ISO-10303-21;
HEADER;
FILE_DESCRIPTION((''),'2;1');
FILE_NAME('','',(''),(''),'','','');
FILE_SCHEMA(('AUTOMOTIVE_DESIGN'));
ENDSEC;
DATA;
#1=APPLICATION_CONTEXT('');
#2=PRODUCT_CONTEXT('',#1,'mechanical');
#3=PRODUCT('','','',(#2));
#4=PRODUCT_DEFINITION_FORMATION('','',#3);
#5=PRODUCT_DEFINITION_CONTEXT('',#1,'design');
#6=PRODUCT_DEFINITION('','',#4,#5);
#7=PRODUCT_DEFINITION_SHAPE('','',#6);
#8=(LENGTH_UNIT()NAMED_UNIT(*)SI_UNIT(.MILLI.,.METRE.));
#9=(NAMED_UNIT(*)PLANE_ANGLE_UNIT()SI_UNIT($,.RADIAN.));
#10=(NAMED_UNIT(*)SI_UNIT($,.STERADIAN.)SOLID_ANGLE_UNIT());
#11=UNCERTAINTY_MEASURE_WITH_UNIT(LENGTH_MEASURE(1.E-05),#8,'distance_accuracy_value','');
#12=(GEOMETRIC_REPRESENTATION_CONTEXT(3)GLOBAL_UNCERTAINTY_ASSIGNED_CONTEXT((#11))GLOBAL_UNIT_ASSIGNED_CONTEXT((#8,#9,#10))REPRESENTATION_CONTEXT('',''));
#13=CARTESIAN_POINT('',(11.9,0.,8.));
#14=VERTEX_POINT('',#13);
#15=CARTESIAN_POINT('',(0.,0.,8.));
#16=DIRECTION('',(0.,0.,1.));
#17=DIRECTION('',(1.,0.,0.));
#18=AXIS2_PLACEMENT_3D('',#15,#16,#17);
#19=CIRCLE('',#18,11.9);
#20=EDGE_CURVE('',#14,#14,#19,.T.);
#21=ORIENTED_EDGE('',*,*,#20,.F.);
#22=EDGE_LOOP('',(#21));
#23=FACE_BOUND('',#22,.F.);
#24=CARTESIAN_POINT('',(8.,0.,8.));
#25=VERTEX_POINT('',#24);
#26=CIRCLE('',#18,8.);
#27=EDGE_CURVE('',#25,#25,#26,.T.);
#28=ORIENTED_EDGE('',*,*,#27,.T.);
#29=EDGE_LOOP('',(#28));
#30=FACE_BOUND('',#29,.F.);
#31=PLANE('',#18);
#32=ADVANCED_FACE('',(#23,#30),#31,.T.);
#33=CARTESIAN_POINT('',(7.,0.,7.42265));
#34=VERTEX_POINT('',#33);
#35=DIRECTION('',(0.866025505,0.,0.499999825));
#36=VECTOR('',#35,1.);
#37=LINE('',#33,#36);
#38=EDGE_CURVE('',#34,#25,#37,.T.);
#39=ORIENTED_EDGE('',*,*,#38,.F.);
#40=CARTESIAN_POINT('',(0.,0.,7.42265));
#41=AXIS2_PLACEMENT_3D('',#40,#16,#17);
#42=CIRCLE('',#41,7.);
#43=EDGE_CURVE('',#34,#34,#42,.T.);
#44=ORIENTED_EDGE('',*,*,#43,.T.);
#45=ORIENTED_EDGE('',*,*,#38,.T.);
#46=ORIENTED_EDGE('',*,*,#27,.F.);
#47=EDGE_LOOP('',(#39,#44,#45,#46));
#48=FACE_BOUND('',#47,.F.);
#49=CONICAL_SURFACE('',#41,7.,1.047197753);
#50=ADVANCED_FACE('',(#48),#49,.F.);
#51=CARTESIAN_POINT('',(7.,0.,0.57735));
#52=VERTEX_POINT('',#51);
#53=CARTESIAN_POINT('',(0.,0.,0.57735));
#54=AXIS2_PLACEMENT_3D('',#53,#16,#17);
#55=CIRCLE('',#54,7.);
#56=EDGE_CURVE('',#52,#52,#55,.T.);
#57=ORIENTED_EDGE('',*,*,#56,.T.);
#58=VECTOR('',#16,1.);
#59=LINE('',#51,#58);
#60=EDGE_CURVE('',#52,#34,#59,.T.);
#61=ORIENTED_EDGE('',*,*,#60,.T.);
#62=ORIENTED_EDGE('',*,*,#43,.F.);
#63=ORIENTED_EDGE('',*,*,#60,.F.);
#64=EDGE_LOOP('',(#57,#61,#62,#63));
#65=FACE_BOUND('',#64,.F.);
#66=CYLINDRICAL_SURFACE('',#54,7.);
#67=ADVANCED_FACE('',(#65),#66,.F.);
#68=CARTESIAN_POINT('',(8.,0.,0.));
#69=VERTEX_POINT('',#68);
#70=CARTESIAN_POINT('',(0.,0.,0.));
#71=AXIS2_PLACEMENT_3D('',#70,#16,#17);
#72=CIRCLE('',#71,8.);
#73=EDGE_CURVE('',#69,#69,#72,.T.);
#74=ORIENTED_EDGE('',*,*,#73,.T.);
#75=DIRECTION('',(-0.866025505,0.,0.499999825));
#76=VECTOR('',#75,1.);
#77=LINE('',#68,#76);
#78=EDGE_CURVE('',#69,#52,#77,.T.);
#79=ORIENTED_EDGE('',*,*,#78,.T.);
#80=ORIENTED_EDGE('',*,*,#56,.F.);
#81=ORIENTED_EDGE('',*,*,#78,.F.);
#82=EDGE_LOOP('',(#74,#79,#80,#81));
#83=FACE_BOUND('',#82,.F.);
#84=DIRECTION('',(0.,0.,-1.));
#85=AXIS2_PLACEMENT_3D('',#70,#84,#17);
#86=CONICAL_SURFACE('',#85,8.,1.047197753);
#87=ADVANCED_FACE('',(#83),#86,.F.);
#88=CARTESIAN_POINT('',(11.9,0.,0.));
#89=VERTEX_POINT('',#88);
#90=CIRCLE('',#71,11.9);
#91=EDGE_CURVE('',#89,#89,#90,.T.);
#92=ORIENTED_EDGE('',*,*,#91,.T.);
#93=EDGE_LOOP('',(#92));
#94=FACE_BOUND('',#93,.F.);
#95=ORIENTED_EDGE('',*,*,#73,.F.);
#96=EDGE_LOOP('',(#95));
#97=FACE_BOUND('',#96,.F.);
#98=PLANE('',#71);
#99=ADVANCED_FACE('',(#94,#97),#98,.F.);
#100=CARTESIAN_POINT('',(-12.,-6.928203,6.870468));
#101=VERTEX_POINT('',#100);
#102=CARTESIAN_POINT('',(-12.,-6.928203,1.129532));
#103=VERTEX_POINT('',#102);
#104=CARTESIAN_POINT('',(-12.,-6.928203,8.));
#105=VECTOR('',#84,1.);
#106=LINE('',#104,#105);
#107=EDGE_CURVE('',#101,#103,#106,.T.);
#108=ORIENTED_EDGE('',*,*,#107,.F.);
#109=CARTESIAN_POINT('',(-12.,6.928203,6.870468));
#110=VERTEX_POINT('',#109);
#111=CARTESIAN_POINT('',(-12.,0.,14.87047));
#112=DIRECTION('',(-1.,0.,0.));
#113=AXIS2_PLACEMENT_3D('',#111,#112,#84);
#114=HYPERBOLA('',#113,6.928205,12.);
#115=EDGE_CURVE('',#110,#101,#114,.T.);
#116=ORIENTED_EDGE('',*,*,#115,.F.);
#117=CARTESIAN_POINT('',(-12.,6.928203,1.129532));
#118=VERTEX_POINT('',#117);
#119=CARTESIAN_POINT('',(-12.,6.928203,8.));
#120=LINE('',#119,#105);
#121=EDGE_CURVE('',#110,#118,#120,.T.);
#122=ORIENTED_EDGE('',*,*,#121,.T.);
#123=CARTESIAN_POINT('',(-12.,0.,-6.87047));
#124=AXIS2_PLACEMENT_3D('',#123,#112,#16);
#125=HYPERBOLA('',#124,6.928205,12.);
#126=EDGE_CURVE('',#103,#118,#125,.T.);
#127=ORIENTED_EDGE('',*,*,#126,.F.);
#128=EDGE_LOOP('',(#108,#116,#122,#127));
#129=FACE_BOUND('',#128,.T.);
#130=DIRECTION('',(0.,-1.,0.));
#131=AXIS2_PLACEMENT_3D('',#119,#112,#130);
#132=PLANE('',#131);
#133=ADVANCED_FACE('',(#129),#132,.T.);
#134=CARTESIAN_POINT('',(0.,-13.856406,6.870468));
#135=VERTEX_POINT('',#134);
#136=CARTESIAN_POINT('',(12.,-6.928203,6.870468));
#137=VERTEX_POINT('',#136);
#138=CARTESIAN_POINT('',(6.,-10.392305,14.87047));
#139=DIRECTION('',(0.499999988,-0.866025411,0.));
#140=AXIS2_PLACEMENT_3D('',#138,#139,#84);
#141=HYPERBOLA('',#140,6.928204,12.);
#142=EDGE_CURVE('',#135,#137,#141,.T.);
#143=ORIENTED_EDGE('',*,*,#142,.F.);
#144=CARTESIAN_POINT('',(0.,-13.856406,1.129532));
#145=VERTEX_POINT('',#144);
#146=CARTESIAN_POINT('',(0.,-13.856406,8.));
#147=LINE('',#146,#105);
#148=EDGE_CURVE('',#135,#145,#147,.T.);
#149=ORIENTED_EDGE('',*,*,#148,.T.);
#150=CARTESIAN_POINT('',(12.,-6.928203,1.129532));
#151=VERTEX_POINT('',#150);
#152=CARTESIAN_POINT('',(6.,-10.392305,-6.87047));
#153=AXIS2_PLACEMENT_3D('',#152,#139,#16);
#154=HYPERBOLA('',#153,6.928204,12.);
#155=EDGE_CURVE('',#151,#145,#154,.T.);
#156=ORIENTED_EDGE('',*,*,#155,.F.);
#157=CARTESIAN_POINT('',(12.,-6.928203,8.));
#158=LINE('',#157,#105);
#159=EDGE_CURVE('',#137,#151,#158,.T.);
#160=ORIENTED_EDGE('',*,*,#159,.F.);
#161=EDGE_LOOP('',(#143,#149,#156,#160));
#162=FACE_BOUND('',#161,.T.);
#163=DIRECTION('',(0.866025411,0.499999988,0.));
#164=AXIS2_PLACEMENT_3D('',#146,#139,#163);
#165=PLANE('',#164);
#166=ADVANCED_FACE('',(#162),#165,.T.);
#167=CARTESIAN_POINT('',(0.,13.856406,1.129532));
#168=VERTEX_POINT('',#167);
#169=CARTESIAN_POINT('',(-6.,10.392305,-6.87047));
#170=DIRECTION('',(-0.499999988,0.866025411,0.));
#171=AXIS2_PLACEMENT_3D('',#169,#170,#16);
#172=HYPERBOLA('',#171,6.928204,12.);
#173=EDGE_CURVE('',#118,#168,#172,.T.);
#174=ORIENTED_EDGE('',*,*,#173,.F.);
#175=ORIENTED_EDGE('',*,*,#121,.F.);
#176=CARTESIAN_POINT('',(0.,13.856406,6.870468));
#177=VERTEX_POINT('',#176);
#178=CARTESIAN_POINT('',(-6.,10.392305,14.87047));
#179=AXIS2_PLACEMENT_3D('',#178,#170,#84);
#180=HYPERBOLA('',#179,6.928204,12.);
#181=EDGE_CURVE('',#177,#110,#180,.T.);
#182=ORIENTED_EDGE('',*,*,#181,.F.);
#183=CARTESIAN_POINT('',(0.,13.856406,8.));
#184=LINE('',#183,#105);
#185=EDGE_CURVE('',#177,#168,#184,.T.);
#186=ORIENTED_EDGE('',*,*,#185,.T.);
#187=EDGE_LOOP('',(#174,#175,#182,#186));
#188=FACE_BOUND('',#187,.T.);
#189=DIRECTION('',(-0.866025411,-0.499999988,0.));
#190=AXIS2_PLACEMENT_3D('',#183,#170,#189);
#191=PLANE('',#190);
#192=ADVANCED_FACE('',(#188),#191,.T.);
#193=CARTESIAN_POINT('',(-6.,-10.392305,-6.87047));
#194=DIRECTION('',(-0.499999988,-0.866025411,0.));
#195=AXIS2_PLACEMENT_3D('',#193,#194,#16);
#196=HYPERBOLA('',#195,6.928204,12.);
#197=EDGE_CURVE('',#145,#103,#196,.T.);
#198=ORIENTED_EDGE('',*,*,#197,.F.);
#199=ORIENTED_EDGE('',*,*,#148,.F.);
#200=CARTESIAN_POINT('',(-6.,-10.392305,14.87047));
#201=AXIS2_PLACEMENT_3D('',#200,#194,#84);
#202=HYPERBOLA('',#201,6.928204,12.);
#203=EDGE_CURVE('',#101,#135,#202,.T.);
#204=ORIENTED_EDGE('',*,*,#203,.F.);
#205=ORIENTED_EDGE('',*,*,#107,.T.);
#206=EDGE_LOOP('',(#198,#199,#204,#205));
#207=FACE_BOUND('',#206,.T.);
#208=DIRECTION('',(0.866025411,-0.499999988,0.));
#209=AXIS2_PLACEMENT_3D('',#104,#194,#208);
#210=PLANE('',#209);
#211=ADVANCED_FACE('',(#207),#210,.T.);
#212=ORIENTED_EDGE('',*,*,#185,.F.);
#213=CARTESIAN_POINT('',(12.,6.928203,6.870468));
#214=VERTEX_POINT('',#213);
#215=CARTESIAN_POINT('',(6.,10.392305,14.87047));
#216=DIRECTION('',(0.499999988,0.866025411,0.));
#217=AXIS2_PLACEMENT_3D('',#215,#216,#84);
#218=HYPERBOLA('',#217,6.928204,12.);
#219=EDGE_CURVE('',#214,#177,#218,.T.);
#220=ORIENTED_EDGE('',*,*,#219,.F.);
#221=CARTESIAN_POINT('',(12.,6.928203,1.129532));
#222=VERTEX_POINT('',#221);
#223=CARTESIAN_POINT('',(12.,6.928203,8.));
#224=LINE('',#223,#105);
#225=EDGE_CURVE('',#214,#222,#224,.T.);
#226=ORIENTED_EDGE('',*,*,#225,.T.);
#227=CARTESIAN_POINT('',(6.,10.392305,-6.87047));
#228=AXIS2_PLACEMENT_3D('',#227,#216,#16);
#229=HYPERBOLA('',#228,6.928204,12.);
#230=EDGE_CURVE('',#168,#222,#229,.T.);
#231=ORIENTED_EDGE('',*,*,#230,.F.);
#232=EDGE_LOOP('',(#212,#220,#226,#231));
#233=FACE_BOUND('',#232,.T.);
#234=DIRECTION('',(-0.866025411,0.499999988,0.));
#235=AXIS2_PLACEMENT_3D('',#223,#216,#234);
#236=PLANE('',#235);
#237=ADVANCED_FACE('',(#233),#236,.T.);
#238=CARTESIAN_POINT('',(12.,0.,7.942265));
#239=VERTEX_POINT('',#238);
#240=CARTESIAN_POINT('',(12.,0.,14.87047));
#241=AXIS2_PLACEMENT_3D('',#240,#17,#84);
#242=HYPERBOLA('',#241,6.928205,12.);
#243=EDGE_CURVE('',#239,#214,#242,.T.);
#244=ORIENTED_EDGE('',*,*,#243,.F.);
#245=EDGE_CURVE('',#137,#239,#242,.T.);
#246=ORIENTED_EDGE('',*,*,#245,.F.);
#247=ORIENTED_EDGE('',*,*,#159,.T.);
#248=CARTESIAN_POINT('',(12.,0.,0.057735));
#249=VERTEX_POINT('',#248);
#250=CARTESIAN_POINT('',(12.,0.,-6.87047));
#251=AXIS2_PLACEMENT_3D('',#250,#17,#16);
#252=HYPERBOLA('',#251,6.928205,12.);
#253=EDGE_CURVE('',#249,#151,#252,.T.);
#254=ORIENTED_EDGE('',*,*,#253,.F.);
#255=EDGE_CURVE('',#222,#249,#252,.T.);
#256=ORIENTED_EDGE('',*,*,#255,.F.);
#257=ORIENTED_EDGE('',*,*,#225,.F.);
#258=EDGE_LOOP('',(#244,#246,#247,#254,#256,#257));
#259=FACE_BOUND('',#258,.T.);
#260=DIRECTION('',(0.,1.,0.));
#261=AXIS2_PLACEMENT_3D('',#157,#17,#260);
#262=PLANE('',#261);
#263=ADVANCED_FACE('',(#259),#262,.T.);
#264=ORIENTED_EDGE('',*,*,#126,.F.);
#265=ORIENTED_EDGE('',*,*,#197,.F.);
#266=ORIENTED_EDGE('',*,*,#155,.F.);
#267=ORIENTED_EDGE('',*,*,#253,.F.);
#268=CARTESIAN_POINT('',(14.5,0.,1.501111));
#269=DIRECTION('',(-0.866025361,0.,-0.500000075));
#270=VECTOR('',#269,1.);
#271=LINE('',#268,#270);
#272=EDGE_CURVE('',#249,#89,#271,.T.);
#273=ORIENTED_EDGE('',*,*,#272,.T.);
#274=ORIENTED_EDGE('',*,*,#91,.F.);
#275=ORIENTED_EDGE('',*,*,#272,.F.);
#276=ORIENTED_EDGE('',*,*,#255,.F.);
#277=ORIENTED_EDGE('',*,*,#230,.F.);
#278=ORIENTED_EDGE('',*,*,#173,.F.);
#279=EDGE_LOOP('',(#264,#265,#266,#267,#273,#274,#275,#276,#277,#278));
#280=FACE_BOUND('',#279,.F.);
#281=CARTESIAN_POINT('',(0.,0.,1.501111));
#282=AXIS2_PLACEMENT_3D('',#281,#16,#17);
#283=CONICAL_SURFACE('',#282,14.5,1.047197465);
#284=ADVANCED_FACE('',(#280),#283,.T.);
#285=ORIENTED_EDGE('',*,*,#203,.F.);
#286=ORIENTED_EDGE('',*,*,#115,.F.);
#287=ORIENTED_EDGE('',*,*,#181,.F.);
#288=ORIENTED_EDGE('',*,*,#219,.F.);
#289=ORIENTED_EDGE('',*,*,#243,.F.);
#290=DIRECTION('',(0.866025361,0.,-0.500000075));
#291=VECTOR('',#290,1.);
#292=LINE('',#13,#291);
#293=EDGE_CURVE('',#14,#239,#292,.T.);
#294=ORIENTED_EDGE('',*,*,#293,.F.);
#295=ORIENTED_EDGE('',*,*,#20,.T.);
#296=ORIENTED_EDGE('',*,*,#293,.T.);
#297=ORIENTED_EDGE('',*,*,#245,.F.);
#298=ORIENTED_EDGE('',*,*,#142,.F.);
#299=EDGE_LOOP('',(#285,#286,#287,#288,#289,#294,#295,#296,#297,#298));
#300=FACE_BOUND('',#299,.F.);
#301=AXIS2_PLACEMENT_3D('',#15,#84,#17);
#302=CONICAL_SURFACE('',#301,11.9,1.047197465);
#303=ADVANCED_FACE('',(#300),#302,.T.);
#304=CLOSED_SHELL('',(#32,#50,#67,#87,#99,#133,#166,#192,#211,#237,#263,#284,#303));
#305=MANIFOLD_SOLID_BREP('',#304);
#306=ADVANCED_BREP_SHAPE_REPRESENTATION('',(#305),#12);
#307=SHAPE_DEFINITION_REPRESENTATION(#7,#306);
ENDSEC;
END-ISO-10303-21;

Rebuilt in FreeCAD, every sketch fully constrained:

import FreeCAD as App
import Part
import Sketcher

V = App.Vector
Q = App.Units.Quantity

doc = App.newDocument("Part")
params = doc.addObject("Spreadsheet::Sheet", "Params")
for row, (alias, value) in enumerate([
    ("sketch1_width", "3.9 mm"),
    ("revolution_angle", "360 deg"),
    ("sketch2_diameter", "29 mm"),
    ("pocket1_length", "8 mm"),
], start=1):
    params.set(f"A{row}", alias)
    params.set(f"B{row}", "=" + value)
    params.setAlias(f"B{row}", alias)

body = doc.addObject("PartDesign::Body", "Body")

# Sketch on XZ plane
sketch1 = body.newObject("Sketcher::SketchObject", "Sketch")
sketch1.AttachmentSupport = (doc.getObject("XZ_Plane"), [""])
sketch1.MapMode = "FlatFace"
sketch1.addGeometry([
    Part.LineSegment(V(7, 0.6, 0), V(8, 0, 0)),  # 0
    Part.LineSegment(V(8, 0, 0), V(11.9, 0, 0)),  # 1
    Part.LineSegment(V(11.9, 0, 0), V(14.5, 1.5, 0)),  # 2
    Part.LineSegment(V(14.5, 1.5, 0), V(14.5, 6.5, 0)),  # 3
    Part.LineSegment(V(14.5, 6.5, 0), V(11.9, 8, 0)),  # 4
    Part.LineSegment(V(11.9, 8, 0), V(8, 8, 0)),  # 5
    Part.LineSegment(V(8, 8, 0), V(7, 7.4, 0)),  # 6
    Part.LineSegment(V(7, 7.4, 0), V(7, 0.6, 0)),  # 7
], False)
sketch1.addConstraint([
    Sketcher.Constraint("Coincident", 0, 2, 1, 1),
    Sketcher.Constraint("Coincident", 1, 2, 2, 1),
    Sketcher.Constraint("Coincident", 2, 2, 3, 1),
    Sketcher.Constraint("Coincident", 3, 2, 4, 1),
    Sketcher.Constraint("Coincident", 4, 2, 5, 1),
    Sketcher.Constraint("Coincident", 5, 2, 6, 1),
    Sketcher.Constraint("Coincident", 6, 2, 7, 1),
    Sketcher.Constraint("Coincident", 7, 2, 0, 1),
    Sketcher.Constraint("Horizontal", 1),
    Sketcher.Constraint("Vertical", 3),
    Sketcher.Constraint("Horizontal", 5),
    Sketcher.Constraint("Vertical", 7),
    Sketcher.Constraint("PointOnObject", 0, 2, -1),
    Sketcher.Constraint("Parallel", 0, 4),
    Sketcher.Constraint("Parallel", 2, 6),
    Sketcher.Constraint("Vertical", 1, 2, 4, 2),
    Sketcher.Constraint("Vertical", 0, 2, 5, 2),
    Sketcher.Constraint("Equal", 2, 4),
    Sketcher.Constraint("Angle", 0, Q("-29.999988 deg")),
    Sketcher.Constraint("DistanceX", 1, 1, 1, 2, 3.9),
    Sketcher.Constraint("DistanceX", -1, 1, 0, 2, 8.0),
    Sketcher.Constraint("DistanceY", -1, 1, 4, 2, 8.0),
    Sketcher.Constraint("DistanceX", -1, 1, 6, 2, 7.0),
    Sketcher.Constraint("DistanceX", -1, 1, 2, 2, 14.5),
])
sketch1.setExpression("Constraints[19]", "Params.sketch1_width")
revolution = body.newObject("PartDesign::Revolution", "Revolution")
revolution.Profile = sketch1
revolution.ReferenceAxis = (sketch1, ["V_Axis"])
revolution.setExpression("Angle", "Params.revolution_angle")

# Sketch on XY plane
sketch2 = body.newObject("Sketcher::SketchObject", "Sketch001")
sketch2.AttachmentSupport = (doc.getObject("XY_Plane"), [""])
sketch2.MapMode = "FlatFace"
sketch2.AttachmentOffset = App.Placement(V(0, 0, 8), App.Rotation())
sketch2.addGeometry([
    Part.Circle(V(0, 0, 0), V(0, 0, 1), 14),  # 0
    Part.LineSegment(V(12, 7, 0), V(12, -7, 0)),  # 1
    Part.LineSegment(V(12, -7, 0), V(0, -14, 0)),  # 2
    Part.LineSegment(V(0, -14, 0), V(-12, -7, 0)),  # 3
    Part.LineSegment(V(-12, -7, 0), V(-12, 7, 0)),  # 4
    Part.LineSegment(V(-12, 7, 0), V(0, 14, 0)),  # 5
    Part.LineSegment(V(0, 14, 0), V(12, 7, 0)),  # 6
], False)
sketch2.addConstraint([
    Sketcher.Constraint("Coincident", 1, 2, 2, 1),
    Sketcher.Constraint("Coincident", 2, 2, 3, 1),
    Sketcher.Constraint("Coincident", 3, 2, 4, 1),
    Sketcher.Constraint("Coincident", 4, 2, 5, 1),
    Sketcher.Constraint("Coincident", 5, 2, 6, 1),
    Sketcher.Constraint("Coincident", 6, 2, 1, 1),
    Sketcher.Constraint("Vertical", 1),
    Sketcher.Constraint("Vertical", 4),
    Sketcher.Constraint("Coincident", 0, 3, -1, 1),
    Sketcher.Constraint("Symmetric", 1, 2, 4, 2, -1, 1),
    Sketcher.Constraint("Symmetric", 2, 2, 5, 2, -1, 1),
    Sketcher.Constraint("PointOnObject", 2, 2, -2),
    Sketcher.Constraint("Parallel", 3, 6),
    Sketcher.Constraint("Horizontal", 1, 2, 3, 2),
    Sketcher.Constraint("Diameter", 0, 29.0),
    Sketcher.Constraint("Angle", 2, Q("-150.000001 deg")),
    Sketcher.Constraint("DistanceX", -1, 1, 1, 2, 12.0),
    Sketcher.Constraint("DistanceY", 1, 2, 1, 1, 13.856406),
])
sketch2.setExpression("Constraints[14]", "Params.sketch2_diameter")
pocket1 = body.newObject("PartDesign::Pocket", "Pocket")
pocket1.Profile = sketch2
pocket1.setExpression("Length", "Params.pocket1_length")

doc.recompute()
